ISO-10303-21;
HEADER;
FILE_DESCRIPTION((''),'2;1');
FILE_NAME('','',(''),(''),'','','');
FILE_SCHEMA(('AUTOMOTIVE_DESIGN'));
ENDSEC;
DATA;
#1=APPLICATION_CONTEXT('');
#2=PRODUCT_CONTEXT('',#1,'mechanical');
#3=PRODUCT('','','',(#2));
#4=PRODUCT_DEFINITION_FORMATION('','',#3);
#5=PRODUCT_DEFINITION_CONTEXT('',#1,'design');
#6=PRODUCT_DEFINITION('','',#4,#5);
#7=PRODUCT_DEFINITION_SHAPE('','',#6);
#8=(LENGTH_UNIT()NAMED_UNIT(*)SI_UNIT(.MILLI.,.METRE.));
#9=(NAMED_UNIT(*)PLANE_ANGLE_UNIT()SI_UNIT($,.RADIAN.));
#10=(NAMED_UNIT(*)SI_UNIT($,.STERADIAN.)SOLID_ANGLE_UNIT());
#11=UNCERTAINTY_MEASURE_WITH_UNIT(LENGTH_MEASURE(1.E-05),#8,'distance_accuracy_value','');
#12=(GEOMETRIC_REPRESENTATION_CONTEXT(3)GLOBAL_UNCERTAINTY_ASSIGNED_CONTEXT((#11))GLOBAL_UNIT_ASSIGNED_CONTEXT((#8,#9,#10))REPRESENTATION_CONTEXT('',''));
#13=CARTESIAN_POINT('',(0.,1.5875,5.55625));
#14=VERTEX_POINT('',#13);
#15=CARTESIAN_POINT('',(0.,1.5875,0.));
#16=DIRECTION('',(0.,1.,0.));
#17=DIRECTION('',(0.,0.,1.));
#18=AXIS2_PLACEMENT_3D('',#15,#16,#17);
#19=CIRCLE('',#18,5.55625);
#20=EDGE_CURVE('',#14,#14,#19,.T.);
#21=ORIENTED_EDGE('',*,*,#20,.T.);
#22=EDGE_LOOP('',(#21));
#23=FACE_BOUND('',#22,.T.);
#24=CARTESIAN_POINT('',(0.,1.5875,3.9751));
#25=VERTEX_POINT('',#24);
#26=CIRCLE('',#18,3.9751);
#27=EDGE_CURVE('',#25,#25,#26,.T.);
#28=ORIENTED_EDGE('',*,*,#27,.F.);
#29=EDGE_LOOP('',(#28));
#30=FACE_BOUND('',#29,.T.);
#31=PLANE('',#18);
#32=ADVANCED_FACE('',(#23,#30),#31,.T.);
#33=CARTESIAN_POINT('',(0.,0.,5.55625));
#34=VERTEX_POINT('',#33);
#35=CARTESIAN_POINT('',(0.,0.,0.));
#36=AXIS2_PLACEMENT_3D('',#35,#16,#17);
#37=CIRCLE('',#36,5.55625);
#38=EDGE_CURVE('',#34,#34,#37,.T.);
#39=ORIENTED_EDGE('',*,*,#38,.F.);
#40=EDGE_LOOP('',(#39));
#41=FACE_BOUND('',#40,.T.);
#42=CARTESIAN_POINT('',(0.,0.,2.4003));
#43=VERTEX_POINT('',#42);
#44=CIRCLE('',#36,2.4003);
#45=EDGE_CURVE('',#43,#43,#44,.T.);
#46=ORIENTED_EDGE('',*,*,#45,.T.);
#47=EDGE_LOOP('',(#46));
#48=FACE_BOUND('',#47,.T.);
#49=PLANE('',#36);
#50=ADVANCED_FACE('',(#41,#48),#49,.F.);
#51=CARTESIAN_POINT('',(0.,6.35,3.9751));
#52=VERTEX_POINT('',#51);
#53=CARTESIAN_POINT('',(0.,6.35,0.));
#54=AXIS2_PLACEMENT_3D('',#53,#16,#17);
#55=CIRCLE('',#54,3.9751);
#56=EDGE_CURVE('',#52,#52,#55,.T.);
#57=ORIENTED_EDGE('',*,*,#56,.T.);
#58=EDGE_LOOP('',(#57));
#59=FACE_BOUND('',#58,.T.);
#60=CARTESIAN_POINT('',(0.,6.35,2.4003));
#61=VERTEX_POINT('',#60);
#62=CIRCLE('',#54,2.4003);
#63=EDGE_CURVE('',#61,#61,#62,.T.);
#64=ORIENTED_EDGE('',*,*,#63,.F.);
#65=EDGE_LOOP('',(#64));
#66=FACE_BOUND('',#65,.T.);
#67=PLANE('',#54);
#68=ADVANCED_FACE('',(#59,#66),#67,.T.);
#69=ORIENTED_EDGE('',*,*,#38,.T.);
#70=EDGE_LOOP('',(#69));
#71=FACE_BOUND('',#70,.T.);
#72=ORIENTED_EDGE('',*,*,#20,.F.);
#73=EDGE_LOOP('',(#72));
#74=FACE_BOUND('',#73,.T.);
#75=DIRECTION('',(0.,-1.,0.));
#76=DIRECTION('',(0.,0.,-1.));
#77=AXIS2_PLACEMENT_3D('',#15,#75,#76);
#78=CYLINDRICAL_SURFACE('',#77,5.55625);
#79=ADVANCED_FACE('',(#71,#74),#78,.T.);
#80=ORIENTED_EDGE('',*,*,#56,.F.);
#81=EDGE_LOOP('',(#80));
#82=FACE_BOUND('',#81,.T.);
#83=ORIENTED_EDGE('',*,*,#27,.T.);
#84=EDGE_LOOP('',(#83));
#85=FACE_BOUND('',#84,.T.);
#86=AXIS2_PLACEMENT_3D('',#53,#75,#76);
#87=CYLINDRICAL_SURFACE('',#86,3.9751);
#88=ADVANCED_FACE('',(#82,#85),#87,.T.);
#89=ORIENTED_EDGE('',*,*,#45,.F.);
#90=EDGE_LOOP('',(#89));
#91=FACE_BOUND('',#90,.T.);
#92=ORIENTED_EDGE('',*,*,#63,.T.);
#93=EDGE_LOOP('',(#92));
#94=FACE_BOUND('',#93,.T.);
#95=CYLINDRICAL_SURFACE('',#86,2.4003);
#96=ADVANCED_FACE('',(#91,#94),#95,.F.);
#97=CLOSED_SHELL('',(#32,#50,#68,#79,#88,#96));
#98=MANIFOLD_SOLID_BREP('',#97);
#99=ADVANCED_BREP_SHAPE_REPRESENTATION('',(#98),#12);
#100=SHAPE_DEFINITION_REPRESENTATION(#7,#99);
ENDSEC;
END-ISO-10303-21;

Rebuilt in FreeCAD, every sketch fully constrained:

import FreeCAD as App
import Part
import Sketcher
Q = App.Units.Quantity

doc = App.newDocument("Part")
body = doc.addObject("PartDesign::Body", "Body")

# Sketch on XZ plane
sketch1 = doc.addObject("Sketcher::SketchObject", "Sketch")
body.addObject(sketch1)
sketch1.AttachmentSupport = (doc.XZ_Plane, [""])
sketch1.MapMode = "FlatFace"
sketch1.addGeometry(Part.Circle(App.Vector(0, 0, 0), App.Vector(0, 0, 1), 4), False)
sketch1.addGeometry(Part.Circle(App.Vector(0, 0, 0), App.Vector(0, 0, 1), 2.4), False)
sketch1.addConstraint(Sketcher.Constraint("Coincident", 0, 3, -1, 1))
sketch1.addConstraint(Sketcher.Constraint("Coincident", 1, 3, -1, 1))
sketch1.addConstraint(Sketcher.Constraint("Diameter", 0, Q("0.313 in")))
sketch1.addConstraint(Sketcher.Constraint("Diameter", 1, Q("0.189 in")))
pad1 = doc.addObject("PartDesign::Pad", "Pad")
body.addObject(pad1)
pad1.Profile = sketch1
pad1.Length = Q("0.25 in")
pad1.Reversed = True

# Sketch on XZ plane
sketch2 = doc.addObject("Sketcher::SketchObject", "Sketch001")
body.addObject(sketch2)
sketch2.AttachmentSupport = (doc.XZ_Plane, [""])
sketch2.MapMode = "FlatFace"
sketch2.addGeometry(Part.Circle(App.Vector(0, 0, 0), App.Vector(0, 0, 1), 5.6), False)
sketch2.addGeometry(Part.Circle(App.Vector(0, 0, 0), App.Vector(0, 0, 1), 4), False)
sketch2.addConstraint(Sketcher.Constraint("Coincident", 0, 3, -1, 1))
sketch2.addConstraint(Sketcher.Constraint("Coincident", 1, 3, -1, 1))
sketch2.addConstraint(Sketcher.Constraint("Diameter", 0, Q("0.4375 in")))
sketch2.addConstraint(Sketcher.Constraint("Diameter", 1, Q("0.313 in")))
pad2 = doc.addObject("PartDesign::Pad", "Pad001")
body.addObject(pad2)
pad2.Profile = sketch2
pad2.Length = Q("0.0625 in")
pad2.Reversed = True

doc.recompute()
